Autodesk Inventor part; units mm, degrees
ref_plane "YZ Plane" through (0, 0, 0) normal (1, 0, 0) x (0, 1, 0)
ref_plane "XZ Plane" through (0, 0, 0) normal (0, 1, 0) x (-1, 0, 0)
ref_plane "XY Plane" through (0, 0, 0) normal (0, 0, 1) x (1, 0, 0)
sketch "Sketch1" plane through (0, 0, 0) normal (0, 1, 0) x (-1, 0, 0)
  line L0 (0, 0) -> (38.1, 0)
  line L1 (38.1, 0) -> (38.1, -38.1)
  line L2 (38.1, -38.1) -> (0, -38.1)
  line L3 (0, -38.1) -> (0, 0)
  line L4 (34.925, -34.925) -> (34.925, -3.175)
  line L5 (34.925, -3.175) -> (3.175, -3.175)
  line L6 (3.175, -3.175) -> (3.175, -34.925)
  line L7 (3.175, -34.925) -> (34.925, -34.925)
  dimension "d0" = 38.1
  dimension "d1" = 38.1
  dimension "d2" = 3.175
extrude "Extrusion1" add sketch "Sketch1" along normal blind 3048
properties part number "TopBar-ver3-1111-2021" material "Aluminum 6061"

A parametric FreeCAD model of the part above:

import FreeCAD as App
import Part
import Sketcher
from FreeCAD import Vector
Q = App.Units.Quantity

doc = App.newDocument("Part")
body = doc.addObject("PartDesign::Body", "Body")

# Sketch on XZ plane
sketch1 = body.newObject("Sketcher::SketchObject", "Sketch")
sketch1.AttachmentSupport = (doc.getObject("XZ_Plane"), [""])
sketch1.MapMode = "FlatFace"
sketch1.addGeometry(Part.LineSegment(Vector(-38, 0, 0), Vector(0, 0, 0)), False)
sketch1.addGeometry(Part.LineSegment(Vector(0, 0, 0), Vector(0, -38, 0)), False)
sketch1.addGeometry(Part.LineSegment(Vector(0, -38, 0), Vector(-38, -38, 0)), False)
sketch1.addGeometry(Part.LineSegment(Vector(-38, -38, 0), Vector(-38, 0, 0)), False)
sketch1.addGeometry(Part.LineSegment(Vector(-35, -3, 0), Vector(-35, -35, 0)), False)
sketch1.addGeometry(Part.LineSegment(Vector(-35, -35, 0), Vector(-3, -35, 0)), False)
sketch1.addGeometry(Part.LineSegment(Vector(-3, -35, 0), Vector(-3, -3, 0)), False)
sketch1.addGeometry(Part.LineSegment(Vector(-3, -3, 0), Vector(-35, -3, 0)), False)
sketch1.addConstraint(Sketcher.Constraint("Coincident", 0, 2, 1, 1))
sketch1.addConstraint(Sketcher.Constraint("Coincident", 1, 2, 2, 1))
sketch1.addConstraint(Sketcher.Constraint("Coincident", 2, 2, 3, 1))
sketch1.addConstraint(Sketcher.Constraint("Coincident", 3, 2, 0, 1))
sketch1.addConstraint(Sketcher.Constraint("Coincident", 4, 2, 5, 1))
sketch1.addConstraint(Sketcher.Constraint("Coincident", 5, 2, 6, 1))
sketch1.addConstraint(Sketcher.Constraint("Coincident", 6, 2, 7, 1))
sketch1.addConstraint(Sketcher.Constraint("Coincident", 7, 2, 4, 1))
sketch1.addConstraint(Sketcher.Constraint("Horizontal", 0))
sketch1.addConstraint(Sketcher.Constraint("Vertical", 1))
sketch1.addConstraint(Sketcher.Constraint("Horizontal", 2))
sketch1.addConstraint(Sketcher.Constraint("Vertical", 3))
sketch1.addConstraint(Sketcher.Constraint("Vertical", 4))
sketch1.addConstraint(Sketcher.Constraint("Horizontal", 5))
sketch1.addConstraint(Sketcher.Constraint("Vertical", 6))
sketch1.addConstraint(Sketcher.Constraint("Horizontal", 7))
sketch1.addConstraint(Sketcher.Constraint("Coincident", 0, 2, -1, 1))
sketch1.addConstraint(Sketcher.Constraint("Equal", 2, 1))
sketch1.addConstraint(Sketcher.Constraint("Equal", 7, 4))
sketch1.addConstraint(Sketcher.Constraint("DistanceX", 0, 1, 0, 2, Q("1.5 in")))
sketch1.addConstraint(Sketcher.Constraint("DistanceX", 5, 2, -1, 1, Q("0.125 in")))
sketch1.addConstraint(Sketcher.Constraint("DistanceY", 6, 2, -1, 1, Q("0.125 in")))
sketch1.addConstraint(Sketcher.Constraint("DistanceX", 2, 2, 4, 2, Q("0.125 in")))
pad1 = body.newObject("PartDesign::Pad", "Pad")
pad1.Profile = sketch1
pad1.Length = Q("120 in")
pad1.Reversed = True

doc.recompute()
